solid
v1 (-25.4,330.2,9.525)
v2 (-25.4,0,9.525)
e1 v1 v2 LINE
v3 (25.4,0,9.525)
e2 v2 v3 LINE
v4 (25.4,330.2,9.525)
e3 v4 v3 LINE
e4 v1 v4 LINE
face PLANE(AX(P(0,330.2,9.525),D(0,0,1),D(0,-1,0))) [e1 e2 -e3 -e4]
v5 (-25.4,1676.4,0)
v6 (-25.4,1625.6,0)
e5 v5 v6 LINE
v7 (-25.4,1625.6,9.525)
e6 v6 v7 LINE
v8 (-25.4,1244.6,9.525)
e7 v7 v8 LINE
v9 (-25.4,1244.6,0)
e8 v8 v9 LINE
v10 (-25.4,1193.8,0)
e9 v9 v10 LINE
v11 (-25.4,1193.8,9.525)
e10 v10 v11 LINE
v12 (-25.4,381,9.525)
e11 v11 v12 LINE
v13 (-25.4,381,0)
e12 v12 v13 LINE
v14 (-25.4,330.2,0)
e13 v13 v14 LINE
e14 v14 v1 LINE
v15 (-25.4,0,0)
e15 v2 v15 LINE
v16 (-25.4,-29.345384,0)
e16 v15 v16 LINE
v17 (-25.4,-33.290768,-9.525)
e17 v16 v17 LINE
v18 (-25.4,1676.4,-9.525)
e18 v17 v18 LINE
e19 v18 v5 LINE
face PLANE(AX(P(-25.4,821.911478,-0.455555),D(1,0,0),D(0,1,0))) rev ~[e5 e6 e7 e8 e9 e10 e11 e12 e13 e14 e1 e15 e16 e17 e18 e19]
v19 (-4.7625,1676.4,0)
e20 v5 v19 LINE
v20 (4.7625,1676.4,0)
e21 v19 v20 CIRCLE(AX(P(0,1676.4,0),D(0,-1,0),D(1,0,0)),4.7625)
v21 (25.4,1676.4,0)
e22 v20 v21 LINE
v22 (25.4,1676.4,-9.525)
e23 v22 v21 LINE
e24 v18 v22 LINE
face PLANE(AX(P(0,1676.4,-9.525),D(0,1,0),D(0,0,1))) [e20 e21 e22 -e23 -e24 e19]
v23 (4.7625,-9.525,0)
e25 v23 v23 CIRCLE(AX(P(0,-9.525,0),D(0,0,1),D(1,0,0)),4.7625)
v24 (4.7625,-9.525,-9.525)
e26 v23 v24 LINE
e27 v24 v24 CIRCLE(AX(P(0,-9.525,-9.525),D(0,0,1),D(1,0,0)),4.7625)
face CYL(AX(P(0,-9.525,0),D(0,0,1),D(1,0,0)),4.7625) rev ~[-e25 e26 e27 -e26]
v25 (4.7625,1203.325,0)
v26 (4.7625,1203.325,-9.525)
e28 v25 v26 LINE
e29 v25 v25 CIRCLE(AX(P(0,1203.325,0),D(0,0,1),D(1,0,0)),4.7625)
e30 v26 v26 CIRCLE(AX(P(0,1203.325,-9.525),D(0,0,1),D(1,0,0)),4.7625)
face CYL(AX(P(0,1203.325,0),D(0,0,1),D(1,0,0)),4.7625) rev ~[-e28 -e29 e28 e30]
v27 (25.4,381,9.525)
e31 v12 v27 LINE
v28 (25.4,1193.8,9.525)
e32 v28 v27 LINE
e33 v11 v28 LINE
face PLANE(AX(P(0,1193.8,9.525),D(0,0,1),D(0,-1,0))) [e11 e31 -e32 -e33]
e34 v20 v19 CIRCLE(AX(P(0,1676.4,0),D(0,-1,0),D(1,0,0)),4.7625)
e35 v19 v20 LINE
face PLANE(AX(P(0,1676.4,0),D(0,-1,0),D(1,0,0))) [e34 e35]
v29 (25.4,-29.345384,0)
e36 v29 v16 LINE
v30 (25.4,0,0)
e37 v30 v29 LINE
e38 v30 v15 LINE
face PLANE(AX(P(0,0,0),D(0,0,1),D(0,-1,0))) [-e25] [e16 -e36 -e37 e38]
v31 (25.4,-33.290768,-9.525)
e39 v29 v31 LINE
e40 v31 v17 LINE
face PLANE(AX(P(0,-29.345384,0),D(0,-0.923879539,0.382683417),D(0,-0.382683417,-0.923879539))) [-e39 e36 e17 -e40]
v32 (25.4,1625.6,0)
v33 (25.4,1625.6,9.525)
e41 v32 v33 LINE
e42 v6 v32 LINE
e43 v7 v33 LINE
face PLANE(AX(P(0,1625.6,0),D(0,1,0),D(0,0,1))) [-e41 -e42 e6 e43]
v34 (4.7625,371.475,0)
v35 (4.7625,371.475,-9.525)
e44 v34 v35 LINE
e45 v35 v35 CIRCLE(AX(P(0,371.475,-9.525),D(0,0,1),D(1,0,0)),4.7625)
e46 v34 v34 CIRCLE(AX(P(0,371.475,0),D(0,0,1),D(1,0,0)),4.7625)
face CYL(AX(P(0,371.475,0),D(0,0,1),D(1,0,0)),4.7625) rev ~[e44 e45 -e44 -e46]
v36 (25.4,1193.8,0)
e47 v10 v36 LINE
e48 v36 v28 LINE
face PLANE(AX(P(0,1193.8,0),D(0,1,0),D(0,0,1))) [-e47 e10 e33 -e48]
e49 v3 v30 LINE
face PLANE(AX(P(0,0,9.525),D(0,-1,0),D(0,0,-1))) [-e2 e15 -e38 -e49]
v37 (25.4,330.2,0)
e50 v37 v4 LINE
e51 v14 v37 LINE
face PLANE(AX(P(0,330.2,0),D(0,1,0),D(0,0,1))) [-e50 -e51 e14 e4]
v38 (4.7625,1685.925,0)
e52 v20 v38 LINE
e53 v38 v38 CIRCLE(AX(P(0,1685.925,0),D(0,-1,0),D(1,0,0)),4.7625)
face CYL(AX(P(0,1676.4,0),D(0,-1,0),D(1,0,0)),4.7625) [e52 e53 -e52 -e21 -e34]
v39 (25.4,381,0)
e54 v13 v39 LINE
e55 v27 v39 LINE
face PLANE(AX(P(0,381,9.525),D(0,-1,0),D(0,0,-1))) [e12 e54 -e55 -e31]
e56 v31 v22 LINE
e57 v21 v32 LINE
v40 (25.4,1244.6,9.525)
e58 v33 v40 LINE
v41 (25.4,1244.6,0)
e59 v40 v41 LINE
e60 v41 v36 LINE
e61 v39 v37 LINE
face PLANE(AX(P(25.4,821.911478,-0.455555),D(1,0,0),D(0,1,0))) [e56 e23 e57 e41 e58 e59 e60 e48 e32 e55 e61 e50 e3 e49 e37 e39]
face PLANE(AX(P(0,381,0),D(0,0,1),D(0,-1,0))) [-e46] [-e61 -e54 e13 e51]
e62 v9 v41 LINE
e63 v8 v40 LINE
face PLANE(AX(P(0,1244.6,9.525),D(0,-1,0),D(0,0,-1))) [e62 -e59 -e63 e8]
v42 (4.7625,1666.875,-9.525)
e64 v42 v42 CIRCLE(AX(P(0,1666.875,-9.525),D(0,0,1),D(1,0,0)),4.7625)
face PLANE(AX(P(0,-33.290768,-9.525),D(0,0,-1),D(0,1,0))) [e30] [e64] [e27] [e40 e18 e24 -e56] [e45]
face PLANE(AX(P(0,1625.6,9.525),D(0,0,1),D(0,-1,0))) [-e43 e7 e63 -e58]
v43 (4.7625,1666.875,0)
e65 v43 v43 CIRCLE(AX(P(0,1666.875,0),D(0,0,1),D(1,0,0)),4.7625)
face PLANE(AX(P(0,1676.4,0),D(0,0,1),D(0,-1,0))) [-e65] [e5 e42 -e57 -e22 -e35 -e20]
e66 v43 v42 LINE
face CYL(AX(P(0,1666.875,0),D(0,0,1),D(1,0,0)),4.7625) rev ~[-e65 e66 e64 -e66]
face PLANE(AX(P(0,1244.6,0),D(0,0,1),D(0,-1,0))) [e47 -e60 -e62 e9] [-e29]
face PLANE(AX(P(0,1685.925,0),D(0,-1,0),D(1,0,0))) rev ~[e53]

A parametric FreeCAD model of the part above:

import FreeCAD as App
import Part
import Sketcher
Q = App.Units.Quantity


def add_polygon(sketch, points):
    """Adds a closed chain of lines whose ends are joined by coincident constraints."""
    first, n = sketch.GeometryCount, len(points)
    for a, b in zip(points, points[1:] + points[:1]):
        sketch.addGeometry(Part.LineSegment(App.Vector(*a, 0), App.Vector(*b, 0)), False)
    for i in range(n):
        sketch.addConstraint(Sketcher.Constraint("Coincident", first + i, 2, first + (i + 1) % n, 1))

doc = App.newDocument("Part")
body = doc.addObject("PartDesign::Body", "Body")

sketch1 = body.newObject("Sketcher::SketchObject", "Sketch")
sketch1.AttachmentSupport = (doc.getObject("YZ_Plane"), [""])
sketch1.MapMode = "FlatFace"
add_polygon(sketch1, [(-33, -10), (1676, -10), (1676, 0), (1626, 0), (1626, 10), (1245, 10), (1245, 0), (1194, 0), (1194, 10), (381, 10), (381, 0), (330, 0), (330, 10), (0, 10), (0, 0), (-29, 0)])
sketch1.addConstraint([
    Sketcher.Constraint("Horizontal", 0),
    Sketcher.Constraint("Vertical", 1),
    Sketcher.Constraint("Horizontal", 2),
    Sketcher.Constraint("Vertical", 3),
    Sketcher.Constraint("Horizontal", 4),
    Sketcher.Constraint("Vertical", 5),
    Sketcher.Constraint("Horizontal", 6),
    Sketcher.Constraint("Vertical", 7),
    Sketcher.Constraint("Horizontal", 8),
    Sketcher.Constraint("Vertical", 9),
    Sketcher.Constraint("Horizontal", 10),
    Sketcher.Constraint("Vertical", 11),
    Sketcher.Constraint("Horizontal", 12),
    Sketcher.Constraint("Vertical", 13),
    Sketcher.Constraint("Horizontal", 14),
    Sketcher.Constraint("Coincident", 13, 2, -1, 1),
    Sketcher.Constraint("PointOnObject", 1, 2, -1),
    Sketcher.Constraint("PointOnObject", 5, 2, -1),
    Sketcher.Constraint("PointOnObject", 9, 2, -1),
    Sketcher.Constraint("Horizontal", 4, 2, 7, 2),
    Sketcher.Constraint("Horizontal", 8, 2, 11, 2),
    Sketcher.Constraint("Equal", 2, 6),
    Sketcher.Constraint("Equal", 6, 10),
    Sketcher.Constraint("Equal", 1, 3),
    Sketcher.Constraint("DistanceX", 2, 2, 2, 1, Q("2 in")),
    Sketcher.Constraint("DistanceX", 4, 2, 4, 1, Q("15 in")),
    Sketcher.Constraint("DistanceX", 8, 2, 8, 1, Q("32 in")),
    Sketcher.Constraint("DistanceX", 12, 2, 12, 1, Q("13 in")),
    Sketcher.Constraint("Angle", 15, Q("-112.499999 deg")),
    Sketcher.Constraint("DistanceY", 1, 1, 1, 2, Q("0.375 in")),
    Sketcher.Constraint("DistanceX", 0, 1, 0, 2, 1709.690768),
])
pad1 = body.newObject("PartDesign::Pad", "Pad")
pad1.Profile = sketch1
pad1.Length = Q("2 in")
pad1.Midplane = True

sketch2 = body.newObject("Sketcher::SketchObject", "Sketch001")
sketch2.AttachmentSupport = (doc.getObject("XZ_Plane"), [""])
sketch2.MapMode = "FlatFace"
sketch2.AttachmentOffset = App.Placement(App.Vector(0, 0, -66 * 25.4), App.Rotation())
sketch2.addGeometry(Part.Circle(App.Vector(0, 0, 0), App.Vector(0, 0, 1), 4.8), False)
sketch2.addConstraint([
    Sketcher.Constraint("Coincident", 0, 3, -1, 1),
    Sketcher.Constraint("Diameter", 0, Q("0.375 in")),
])
pad2 = body.newObject("PartDesign::Pad", "Pad001")
pad2.Profile = sketch2
pad2.Length = Q("0.375 in")
pad2.Reversed = True

sketch3 = body.newObject("Sketcher::SketchObject", "Sketch002")
sketch3.AttachmentSupport = (doc.getObject("XY_Plane"), [""])
sketch3.MapMode = "FlatFace"
sketch3.addGeometry([
    Part.Circle(App.Vector(0, 371.5, 0), App.Vector(0, 0, 1), 4.8),
    Part.Circle(App.Vector(0, 1203.3, 0), App.Vector(0, 0, 1), 4.8),
    Part.Circle(App.Vector(0, 1666.9, 0), App.Vector(0, 0, 1), 4.8),
    Part.Circle(App.Vector(0, -9.5, 0), App.Vector(0, 0, 1), 4.8),
], False)
sketch3.addConstraint([
    Sketcher.Constraint("Equal", 0, 1),
    Sketcher.Constraint("Equal", 1, 2),
    Sketcher.Constraint("Equal", 2, 3),
    Sketcher.Constraint("PointOnObject", 0, 3, -2),
    Sketcher.Constraint("PointOnObject", 1, 3, -2),
    Sketcher.Constraint("PointOnObject", 2, 3, -2),
    Sketcher.Constraint("PointOnObject", 3, 3, -2),
    Sketcher.Constraint("Diameter", 0, Q("0.375 in")),
    Sketcher.Constraint("DistanceY", 0, 3, 2, 3, Q("51 in")),
    Sketcher.Constraint("DistanceY", 3, 3, 0, 3, Q("15 in")),
    Sketcher.Constraint("DistanceY", 0, 3, 1, 3, Q("32.75 in")),
    Sketcher.Constraint("DistanceY", -1, 1, 0, 3, Q("14.625 in")),
])
pocket1 = body.newObject("PartDesign::Pocket", "Pocket")
pocket1.Profile = sketch3
pocket1.Length = Q("1 in")

doc.recompute()
